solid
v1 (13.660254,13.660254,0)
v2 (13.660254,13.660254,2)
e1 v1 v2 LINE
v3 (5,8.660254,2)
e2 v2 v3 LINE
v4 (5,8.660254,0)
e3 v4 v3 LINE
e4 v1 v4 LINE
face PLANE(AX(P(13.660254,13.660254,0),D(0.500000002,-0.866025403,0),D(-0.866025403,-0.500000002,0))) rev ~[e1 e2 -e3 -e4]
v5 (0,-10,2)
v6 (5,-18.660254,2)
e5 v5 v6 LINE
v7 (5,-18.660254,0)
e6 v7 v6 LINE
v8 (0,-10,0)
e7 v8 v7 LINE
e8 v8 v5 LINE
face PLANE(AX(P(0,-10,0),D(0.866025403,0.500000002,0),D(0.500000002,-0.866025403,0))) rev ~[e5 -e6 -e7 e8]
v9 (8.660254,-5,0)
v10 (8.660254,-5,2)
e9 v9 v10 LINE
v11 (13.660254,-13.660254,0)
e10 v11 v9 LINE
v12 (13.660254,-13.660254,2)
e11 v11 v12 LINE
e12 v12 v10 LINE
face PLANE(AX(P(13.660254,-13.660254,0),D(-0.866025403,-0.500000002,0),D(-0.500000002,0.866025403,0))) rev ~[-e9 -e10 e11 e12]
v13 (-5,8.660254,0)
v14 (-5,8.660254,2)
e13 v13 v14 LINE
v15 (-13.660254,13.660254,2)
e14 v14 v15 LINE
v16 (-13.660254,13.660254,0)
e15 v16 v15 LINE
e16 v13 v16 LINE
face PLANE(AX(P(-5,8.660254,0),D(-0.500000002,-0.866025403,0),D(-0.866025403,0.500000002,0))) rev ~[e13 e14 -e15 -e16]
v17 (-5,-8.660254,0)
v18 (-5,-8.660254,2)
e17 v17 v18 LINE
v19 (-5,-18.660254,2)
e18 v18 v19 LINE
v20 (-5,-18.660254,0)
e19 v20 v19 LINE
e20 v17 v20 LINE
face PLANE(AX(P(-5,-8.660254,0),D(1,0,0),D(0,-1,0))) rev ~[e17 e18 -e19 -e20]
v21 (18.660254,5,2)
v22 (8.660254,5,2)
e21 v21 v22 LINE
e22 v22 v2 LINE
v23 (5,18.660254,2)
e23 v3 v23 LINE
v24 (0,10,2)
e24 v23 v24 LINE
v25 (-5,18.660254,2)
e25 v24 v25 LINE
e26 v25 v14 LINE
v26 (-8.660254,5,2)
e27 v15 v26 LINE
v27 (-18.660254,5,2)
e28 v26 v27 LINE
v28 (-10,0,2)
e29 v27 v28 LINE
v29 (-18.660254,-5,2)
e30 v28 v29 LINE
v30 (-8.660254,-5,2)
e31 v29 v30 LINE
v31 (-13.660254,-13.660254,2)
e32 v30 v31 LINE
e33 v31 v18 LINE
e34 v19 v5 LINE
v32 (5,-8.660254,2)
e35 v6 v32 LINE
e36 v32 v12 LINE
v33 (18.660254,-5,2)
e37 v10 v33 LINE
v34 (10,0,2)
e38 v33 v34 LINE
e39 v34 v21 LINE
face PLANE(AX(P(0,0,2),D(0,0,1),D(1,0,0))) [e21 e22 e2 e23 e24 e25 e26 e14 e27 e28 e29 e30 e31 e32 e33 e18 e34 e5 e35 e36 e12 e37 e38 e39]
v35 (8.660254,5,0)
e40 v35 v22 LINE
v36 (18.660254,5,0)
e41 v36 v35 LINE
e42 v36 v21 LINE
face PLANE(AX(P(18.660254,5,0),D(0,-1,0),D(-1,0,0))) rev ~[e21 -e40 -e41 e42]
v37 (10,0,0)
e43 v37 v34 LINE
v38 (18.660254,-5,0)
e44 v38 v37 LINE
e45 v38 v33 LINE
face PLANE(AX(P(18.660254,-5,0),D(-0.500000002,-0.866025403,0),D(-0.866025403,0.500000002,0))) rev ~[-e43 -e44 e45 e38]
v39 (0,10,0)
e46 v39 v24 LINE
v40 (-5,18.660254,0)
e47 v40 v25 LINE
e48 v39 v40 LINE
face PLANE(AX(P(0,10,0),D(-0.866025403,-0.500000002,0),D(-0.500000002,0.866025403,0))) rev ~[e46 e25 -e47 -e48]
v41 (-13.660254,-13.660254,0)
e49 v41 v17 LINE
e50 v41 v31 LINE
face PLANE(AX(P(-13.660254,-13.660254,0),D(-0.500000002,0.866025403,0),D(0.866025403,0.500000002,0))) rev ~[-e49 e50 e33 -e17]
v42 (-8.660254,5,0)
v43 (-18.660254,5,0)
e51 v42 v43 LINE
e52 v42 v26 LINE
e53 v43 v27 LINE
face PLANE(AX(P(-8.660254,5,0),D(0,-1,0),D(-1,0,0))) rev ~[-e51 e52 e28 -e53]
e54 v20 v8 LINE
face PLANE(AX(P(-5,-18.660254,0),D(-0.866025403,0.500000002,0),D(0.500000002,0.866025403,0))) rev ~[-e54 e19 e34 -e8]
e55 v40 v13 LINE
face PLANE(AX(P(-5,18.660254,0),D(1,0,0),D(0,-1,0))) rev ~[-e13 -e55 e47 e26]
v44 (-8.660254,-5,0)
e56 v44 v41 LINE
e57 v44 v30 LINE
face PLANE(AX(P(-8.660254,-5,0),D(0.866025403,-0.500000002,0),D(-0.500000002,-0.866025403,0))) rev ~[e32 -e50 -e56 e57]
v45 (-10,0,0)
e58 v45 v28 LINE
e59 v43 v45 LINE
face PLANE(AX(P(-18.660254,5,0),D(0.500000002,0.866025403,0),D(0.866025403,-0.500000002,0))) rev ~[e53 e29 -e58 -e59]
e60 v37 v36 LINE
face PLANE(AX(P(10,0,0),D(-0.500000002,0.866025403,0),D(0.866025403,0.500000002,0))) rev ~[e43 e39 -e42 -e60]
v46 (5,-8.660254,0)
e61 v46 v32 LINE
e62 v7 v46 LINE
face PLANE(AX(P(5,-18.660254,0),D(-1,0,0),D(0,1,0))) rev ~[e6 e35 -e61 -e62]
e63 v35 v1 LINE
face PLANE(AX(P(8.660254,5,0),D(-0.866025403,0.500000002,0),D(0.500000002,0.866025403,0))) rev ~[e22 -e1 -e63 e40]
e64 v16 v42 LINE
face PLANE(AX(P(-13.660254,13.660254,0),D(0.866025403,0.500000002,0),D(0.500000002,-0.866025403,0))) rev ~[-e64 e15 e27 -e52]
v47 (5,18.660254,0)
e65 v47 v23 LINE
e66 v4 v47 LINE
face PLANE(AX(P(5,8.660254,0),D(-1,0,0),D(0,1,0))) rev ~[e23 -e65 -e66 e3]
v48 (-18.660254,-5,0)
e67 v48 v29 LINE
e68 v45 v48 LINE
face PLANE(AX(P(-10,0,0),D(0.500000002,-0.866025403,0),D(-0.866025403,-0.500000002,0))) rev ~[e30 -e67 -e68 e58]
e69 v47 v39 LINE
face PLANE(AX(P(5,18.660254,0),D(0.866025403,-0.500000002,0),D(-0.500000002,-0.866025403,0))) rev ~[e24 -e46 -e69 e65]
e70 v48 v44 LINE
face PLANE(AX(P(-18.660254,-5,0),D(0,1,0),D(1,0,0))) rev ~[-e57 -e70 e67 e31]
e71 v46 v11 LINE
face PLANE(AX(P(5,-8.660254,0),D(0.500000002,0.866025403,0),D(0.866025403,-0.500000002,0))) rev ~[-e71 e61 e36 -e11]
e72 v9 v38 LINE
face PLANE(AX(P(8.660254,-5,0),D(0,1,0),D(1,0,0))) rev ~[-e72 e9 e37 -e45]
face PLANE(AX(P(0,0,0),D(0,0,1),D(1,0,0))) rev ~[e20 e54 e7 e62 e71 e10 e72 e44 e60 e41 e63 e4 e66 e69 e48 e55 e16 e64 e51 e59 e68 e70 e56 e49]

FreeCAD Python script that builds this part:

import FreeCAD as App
import Part
import Sketcher
Q = App.Units.Quantity

doc = App.newDocument("Part")
body = doc.addObject("PartDesign::Body", "Body")

# Sketch on XY plane
sketch1 = body.newObject("Sketcher::SketchObject", "Sketch")
sketch1.AttachmentSupport = (doc.getObject("XY_Plane"), [""])
sketch1.MapMode = "FlatFace"
sketch1.addGeometry([
    Part.LineSegment(App.Vector(0, 10, 0), App.Vector(-5, 19, 0)),  # 0
    Part.LineSegment(App.Vector(-5, 19, 0), App.Vector(-5, 9, 0)),  # 1
    Part.LineSegment(App.Vector(-5, 9, 0), App.Vector(-14, 14, 0)),  # 2
    Part.LineSegment(App.Vector(-14, 14, 0), App.Vector(-9, 5, 0)),  # 3
    Part.LineSegment(App.Vector(-9, 5, 0), App.Vector(-19, 5, 0)),  # 4
    Part.LineSegment(App.Vector(-19, 5, 0), App.Vector(-10, 0, 0)),  # 5
    Part.LineSegment(App.Vector(-10, 0, 0), App.Vector(-19, -5, 0)),  # 6
    Part.LineSegment(App.Vector(-19, -5, 0), App.Vector(-9, -5, 0)),  # 7
    Part.LineSegment(App.Vector(-9, -5, 0), App.Vector(-14, -14, 0)),  # 8
    Part.LineSegment(App.Vector(-14, -14, 0), App.Vector(-5, -9, 0)),  # 9
    Part.LineSegment(App.Vector(-5, -9, 0), App.Vector(-5, -19, 0)),  # 10
    Part.LineSegment(App.Vector(-5, -19, 0), App.Vector(0, -10, 0)),  # 11
    Part.LineSegment(App.Vector(0, -10, 0), App.Vector(5, -19, 0)),  # 12
    Part.LineSegment(App.Vector(5, -19, 0), App.Vector(5, -9, 0)),  # 13
    Part.LineSegment(App.Vector(5, -9, 0), App.Vector(14, -14, 0)),  # 14
    Part.LineSegment(App.Vector(14, -14, 0), App.Vector(9, -5, 0)),  # 15
    Part.LineSegment(App.Vector(9, -5, 0), App.Vector(19, -5, 0)),  # 16
    Part.LineSegment(App.Vector(19, -5, 0), App.Vector(10, 0, 0)),  # 17
    Part.LineSegment(App.Vector(10, 0, 0), App.Vector(19, 5, 0)),  # 18
    Part.LineSegment(App.Vector(19, 5, 0), App.Vector(9, 5, 0)),  # 19
    Part.LineSegment(App.Vector(9, 5, 0), App.Vector(14, 14, 0)),  # 20
    Part.LineSegment(App.Vector(14, 14, 0), App.Vector(5, 9, 0)),  # 21
    Part.LineSegment(App.Vector(5, 9, 0), App.Vector(5, 19, 0)),  # 22
    Part.LineSegment(App.Vector(5, 19, 0), App.Vector(0, 10, 0)),  # 23
], False)
sketch1.addConstraint([
    Sketcher.Constraint("Coincident", 0, 2, 1, 1),
    Sketcher.Constraint("Coincident", 1, 2, 2, 1),
    Sketcher.Constraint("Coincident", 2, 2, 3, 1),
    Sketcher.Constraint("Coincident", 3, 2, 4, 1),
    Sketcher.Constraint("Coincident", 4, 2, 5, 1),
    Sketcher.Constraint("Coincident", 5, 2, 6, 1),
    Sketcher.Constraint("Coincident", 6, 2, 7, 1),
    Sketcher.Constraint("Coincident", 7, 2, 8, 1),
    Sketcher.Constraint("Coincident", 8, 2, 9, 1),
    Sketcher.Constraint("Coincident", 9, 2, 10, 1),
    Sketcher.Constraint("Coincident", 10, 2, 11, 1),
    Sketcher.Constraint("Coincident", 11, 2, 12, 1),
    Sketcher.Constraint("Coincident", 12, 2, 13, 1),
    Sketcher.Constraint("Coincident", 13, 2, 14, 1),
    Sketcher.Constraint("Coincident", 14, 2, 15, 1),
    Sketcher.Constraint("Coincident", 15, 2, 16, 1),
    Sketcher.Constraint("Coincident", 16, 2, 17, 1),
    Sketcher.Constraint("Coincident", 17, 2, 18, 1),
    Sketcher.Constraint("Coincident", 18, 2, 19, 1),
    Sketcher.Constraint("Coincident", 19, 2, 20, 1),
    Sketcher.Constraint("Coincident", 20, 2, 21, 1),
    Sketcher.Constraint("Coincident", 21, 2, 22, 1),
    Sketcher.Constraint("Coincident", 22, 2, 23, 1),
    Sketcher.Constraint("Coincident", 23, 2, 0, 1),
    Sketcher.Constraint("Vertical", 1),
    Sketcher.Constraint("Horizontal", 4),
    Sketcher.Constraint("Horizontal", 7),
    Sketcher.Constraint("Vertical", 10),
    Sketcher.Constraint("Vertical", 13),
    Sketcher.Constraint("Horizontal", 16),
    Sketcher.Constraint("Horizontal", 19),
    Sketcher.Constraint("Vertical", 22),
    Sketcher.Constraint("Symmetric", 0, 2, 12, 2, -1, 1),
    Sketcher.Constraint("Symmetric", 2, 2, 14, 2, -1, 1),
    Sketcher.Constraint("Symmetric", 3, 2, 15, 2, -1, 1),
    Sketcher.Constraint("Symmetric", 5, 2, 17, 2, -1, 1),
    Sketcher.Constraint("Symmetric", 6, 2, 18, 2, -1, 1),
    Sketcher.Constraint("Symmetric", 8, 2, 20, 2, -1, 1),
    Sketcher.Constraint("Symmetric", 9, 2, 21, 2, -1, 1),
    Sketcher.Constraint("Symmetric", 11, 2, 23, 2, -1, 1),
    Sketcher.Constraint("Symmetric", 10, 2, 12, 2, -2),
    Sketcher.Constraint("Symmetric", 8, 2, 14, 2, -2),
    Sketcher.Constraint("Symmetric", 7, 2, 15, 2, -2),
    Sketcher.Constraint("PointOnObject", 5, 2, -1),
    Sketcher.Constraint("PointOnObject", 11, 2, -2),
    Sketcher.Constraint("Parallel", 0, 3),
    Sketcher.Constraint("Parallel", 2, 5),
    Sketcher.Constraint("Perpendicular", 3, 6),
    Sketcher.Constraint("Perpendicular", 5, 8),
    Sketcher.Constraint("Parallel", 6, 9),
    Sketcher.Constraint("Perpendicular", 11, 14),
    Sketcher.Constraint("Parallel", 14, 17),
    Sketcher.Constraint("Perpendicular", 17, 20),
    Sketcher.Constraint("Parallel", 20, 23),
    Sketcher.Constraint("Equal", 19, 1),
    Sketcher.Constraint("Equal", 0, 2),
    Sketcher.Constraint("Equal", 2, 3),
    Sketcher.Constraint("Equal", 3, 5),
    Sketcher.Constraint("DistanceX", 4, 2, 4, 1, Q("10 mm")),
    Sketcher.Constraint("Angle", 0, Q("120 deg")),
    Sketcher.Constraint("Distance", 0, Q("10 mm")),
])
pad1 = body.newObject("PartDesign::Pad", "Pad")
pad1.Profile = sketch1
pad1.Length = 2

doc.recompute()
